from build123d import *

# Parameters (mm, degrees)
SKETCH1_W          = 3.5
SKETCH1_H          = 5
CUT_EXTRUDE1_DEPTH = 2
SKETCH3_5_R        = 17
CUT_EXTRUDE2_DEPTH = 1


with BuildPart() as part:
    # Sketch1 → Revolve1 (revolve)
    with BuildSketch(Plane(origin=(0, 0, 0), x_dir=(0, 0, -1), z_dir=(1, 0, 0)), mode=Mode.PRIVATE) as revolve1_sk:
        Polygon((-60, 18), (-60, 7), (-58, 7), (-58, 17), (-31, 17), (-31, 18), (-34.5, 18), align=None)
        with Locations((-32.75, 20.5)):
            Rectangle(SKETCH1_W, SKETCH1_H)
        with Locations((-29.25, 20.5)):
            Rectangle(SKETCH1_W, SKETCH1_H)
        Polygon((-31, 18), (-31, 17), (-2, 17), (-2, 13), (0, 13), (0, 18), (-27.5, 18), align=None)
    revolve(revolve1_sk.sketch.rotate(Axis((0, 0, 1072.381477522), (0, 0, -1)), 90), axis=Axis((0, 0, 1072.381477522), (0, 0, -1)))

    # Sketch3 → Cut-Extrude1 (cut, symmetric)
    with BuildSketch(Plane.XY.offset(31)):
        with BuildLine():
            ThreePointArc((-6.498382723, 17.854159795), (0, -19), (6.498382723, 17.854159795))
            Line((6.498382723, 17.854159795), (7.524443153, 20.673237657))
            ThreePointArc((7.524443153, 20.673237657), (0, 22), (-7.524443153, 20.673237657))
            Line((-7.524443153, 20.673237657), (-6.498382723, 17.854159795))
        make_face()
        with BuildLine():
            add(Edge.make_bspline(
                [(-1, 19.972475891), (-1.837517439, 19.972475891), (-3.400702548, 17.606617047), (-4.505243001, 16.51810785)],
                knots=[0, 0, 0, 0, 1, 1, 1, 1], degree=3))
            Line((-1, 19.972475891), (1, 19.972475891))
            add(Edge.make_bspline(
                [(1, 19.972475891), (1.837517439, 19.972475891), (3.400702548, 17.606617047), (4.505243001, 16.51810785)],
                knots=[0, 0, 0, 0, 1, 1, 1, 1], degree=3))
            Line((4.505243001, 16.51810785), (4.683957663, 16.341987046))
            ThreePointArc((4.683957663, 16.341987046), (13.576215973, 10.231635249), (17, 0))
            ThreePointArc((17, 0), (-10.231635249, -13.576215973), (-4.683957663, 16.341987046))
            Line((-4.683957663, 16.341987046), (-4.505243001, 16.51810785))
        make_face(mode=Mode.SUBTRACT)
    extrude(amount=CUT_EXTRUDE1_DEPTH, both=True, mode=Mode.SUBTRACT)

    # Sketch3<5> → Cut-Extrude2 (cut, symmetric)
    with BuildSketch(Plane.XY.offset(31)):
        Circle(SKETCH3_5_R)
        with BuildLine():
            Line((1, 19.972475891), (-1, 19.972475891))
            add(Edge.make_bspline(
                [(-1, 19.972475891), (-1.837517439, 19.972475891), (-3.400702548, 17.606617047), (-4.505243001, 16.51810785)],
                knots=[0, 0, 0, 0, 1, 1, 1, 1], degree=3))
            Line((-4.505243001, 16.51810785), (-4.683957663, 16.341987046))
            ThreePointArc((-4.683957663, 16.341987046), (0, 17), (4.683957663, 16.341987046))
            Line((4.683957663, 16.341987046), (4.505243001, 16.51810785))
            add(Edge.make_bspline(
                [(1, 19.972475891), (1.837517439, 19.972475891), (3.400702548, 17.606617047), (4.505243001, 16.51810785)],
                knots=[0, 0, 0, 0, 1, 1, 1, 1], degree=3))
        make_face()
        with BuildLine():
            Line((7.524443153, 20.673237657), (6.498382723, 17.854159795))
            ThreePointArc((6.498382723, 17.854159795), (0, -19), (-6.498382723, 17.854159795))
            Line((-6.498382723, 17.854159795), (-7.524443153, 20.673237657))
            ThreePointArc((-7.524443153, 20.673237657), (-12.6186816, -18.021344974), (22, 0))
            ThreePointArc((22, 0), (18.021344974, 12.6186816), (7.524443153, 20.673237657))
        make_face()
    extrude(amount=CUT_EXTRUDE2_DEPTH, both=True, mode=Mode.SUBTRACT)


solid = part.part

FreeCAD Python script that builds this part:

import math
import FreeCAD as App
import Part
import Sketcher

V = App.Vector
Q = App.Units.Quantity


def add_polygon(sketch, points):
    """Adds a closed chain of lines whose ends are joined by coincident constraints."""
    first, n = sketch.GeometryCount, len(points)
    for a, b in zip(points, points[1:] + points[:1]):
        sketch.addGeometry(Part.LineSegment(App.Vector(*a, 0), App.Vector(*b, 0)), False)
    for i in range(n):
        sketch.addConstraint(Sketcher.Constraint("Coincident", first + i, 2, first + (i + 1) % n, 1))

doc = App.newDocument("Part")
body = doc.addObject("PartDesign::Body", "Body")

# Sketch on YZ plane
sketch1 = doc.addObject("Sketcher::SketchObject", "Sketch")
body.addObject(sketch1)
sketch1.AttachmentSupport = (doc.YZ_Plane, [""])
sketch1.MapMode = "FlatFace"
add_polygon(sketch1, [(18, 60), (7, 60), (7, 58), (17, 58), (17, 2), (13, 2), (13, 0), (18, 0), (18, 27.5), (23, 27.5), (23, 34.5), (18, 34.5)])  # lines 0-11
sketch1.addConstraint(Sketcher.Constraint("Horizontal", 0))
sketch1.addConstraint(Sketcher.Constraint("Vertical", 1))
sketch1.addConstraint(Sketcher.Constraint("Horizontal", 2))
sketch1.addConstraint(Sketcher.Constraint("Vertical", 3))
sketch1.addConstraint(Sketcher.Constraint("Horizontal", 4))
sketch1.addConstraint(Sketcher.Constraint("Vertical", 5))
sketch1.addConstraint(Sketcher.Constraint("Horizontal", 6))
sketch1.addConstraint(Sketcher.Constraint("Vertical", 7))
sketch1.addConstraint(Sketcher.Constraint("Horizontal", 8))
sketch1.addConstraint(Sketcher.Constraint("Vertical", 9))
sketch1.addConstraint(Sketcher.Constraint("Horizontal", 10))
sketch1.addConstraint(Sketcher.Constraint("Vertical", 11))
sketch1.addConstraint(Sketcher.Constraint("PointOnObject", 5, 2, -1))
sketch1.addConstraint(Sketcher.Constraint("Vertical", 7, 2, 10, 2))
sketch1.addConstraint(Sketcher.Constraint("Equal", 6, 8))
sketch1.addConstraint(Sketcher.Constraint("Equal", 1, 5))
sketch1.addConstraint(Sketcher.Constraint("DistanceX", 0, 2, 0, 1, 11.0))
sketch1.addConstraint(Sketcher.Constraint("DistanceX", 2, 1, 2, 2, 10.0))
sketch1.addConstraint(Sketcher.Constraint("DistanceX", 4, 2, 4, 1, 4.0))
sketch1.addConstraint(Sketcher.Constraint("DistanceY", 1, 2, 1, 1, 2.0))
sketch1.addConstraint(Sketcher.Constraint("DistanceY", 3, 2, 3, 1, 56.0))
sketch1.addConstraint(Sketcher.Constraint("DistanceY", 9, 1, 9, 2, 7.0))
sketch1.addConstraint(Sketcher.Constraint("DistanceY", 7, 1, 7, 2, 27.5))
sketch1.addConstraint(Sketcher.Constraint("DistanceX", -1, 1, 0, 2, 7.0))
revolution = doc.addObject("PartDesign::Revolution", "Revolution")
body.addObject(revolution)
revolution.Profile = sketch1
revolution.ReferenceAxis = (sketch1, ["V_Axis"])
revolution.Angle = 360

# Sketch on XY plane
sketch2 = doc.addObject("Sketcher::SketchObject", "Sketch001")
body.addObject(sketch2)
sketch2.AttachmentSupport = (doc.XY_Plane, [""])
sketch2.MapMode = "FlatFace"
sketch2.AttachmentOffset = App.Placement(V(0, 0, 31), App.Rotation())
sketch2.addGeometry(Part.ArcOfCircle(Part.Circle(V(0, 0, 0), V(0, 0, 1), 19), math.radians(110), math.radians(430)), False)
sketch2.addGeometry(Part.LineSegment(V(6.498383, 17.85416, 0), V(7.524443, 20.673238, 0)), False)
sketch2.addGeometry(Part.ArcOfCircle(Part.Circle(V(0, 0, 0), V(0, 0, 1), 22), math.radians(70), math.radians(110)), False)
sketch2.addGeometry(Part.LineSegment(V(-7.524443, 20.673238, 0), V(-6.498383, 17.85416, 0)), False)
sketch2.addGeometry(Part.BSplineCurve([V(-1, 19.972476, 0), V(-1.837517, 19.972476, 0), V(-3.400703, 17.606617, 0), V(-4.505243, 16.518108, 0)], [4, 4], [0, 1], False, 3, [1, 1, 1, 1], False), False)
sketch2.addGeometry(Part.LineSegment(V(-1, 19.972476, 0), V(1, 19.972476, 0)), False)
sketch2.addGeometry(Part.BSplineCurve([V(1, 19.972476, 0), V(1.837517, 19.972476, 0), V(3.400703, 17.606617, 0), V(4.505243, 16.518108, 0)], [4, 4], [0, 1], False, 3, [1, 1, 1, 1], False), False)
sketch2.addGeometry(Part.LineSegment(V(4.505243, 16.518108, 0), V(4.683958, 16.341987, 0)), False)
sketch2.addGeometry(Part.ArcOfCircle(Part.Circle(V(0, 0, 0), V(0, 0, 1), 17), math.radians(0), math.radians(74.006582)), False)
sketch2.addGeometry(Part.ArcOfCircle(Part.Circle(V(0, 0, 0), V(0, 0, 1), 17), math.radians(105.993418), math.radians(360)), False)
sketch2.addGeometry(Part.LineSegment(V(-4.683958, 16.341987, 0), V(-4.505243, 16.518108, 0)), False)
sketch2.addConstraint(Sketcher.Constraint("Block", 4))
sketch2.addConstraint(Sketcher.Constraint("Block", 6))
sketch2.addConstraint(Sketcher.Constraint("Coincident", 0, 2, 1, 1))
sketch2.addConstraint(Sketcher.Constraint("Coincident", 1, 2, 2, 1))
sketch2.addConstraint(Sketcher.Constraint("Coincident", 2, 2, 3, 1))
sketch2.addConstraint(Sketcher.Constraint("Coincident", 3, 2, 0, 1))
sketch2.addConstraint(Sketcher.Constraint("Coincident", 4, 1, 5, 1))
sketch2.addConstraint(Sketcher.Constraint("Coincident", 5, 2, 6, 1))
sketch2.addConstraint(Sketcher.Constraint("Coincident", 6, 2, 7, 1))
sketch2.addConstraint(Sketcher.Constraint("Coincident", 7, 2, 8, 2))
sketch2.addConstraint(Sketcher.Constraint("Tangent", 8, 1, 9, 2))
sketch2.addConstraint(Sketcher.Constraint("Coincident", 9, 1, 10, 1))
sketch2.addConstraint(Sketcher.Constraint("Coincident", 10, 2, 4, 2))
sketch2.addConstraint(Sketcher.Constraint("Coincident", 0, 3, -1, 1))
sketch2.addConstraint(Sketcher.Constraint("Coincident", 2, 3, -1, 1))
sketch2.addConstraint(Sketcher.Constraint("Coincident", 8, 3, -1, 1))
sketch2.addConstraint(Sketcher.Constraint("Equal", 8, 9))
sketch2.addConstraint(Sketcher.Constraint("PointOnObject", 8, 1, -1))
sketch2.addConstraint(Sketcher.Constraint("Horizontal", 1, 2, 2, 2))
sketch2.addConstraint(Sketcher.Constraint("Horizontal", 0, 2, 3, 2))
sketch2.addConstraint(Sketcher.Constraint("Horizontal", 7, 2, 9, 1))
sketch2.addConstraint(Sketcher.Constraint("Radius", 0, 19.0))
sketch2.addConstraint(Sketcher.Constraint("Radius", 2, 22.0))
sketch2.addConstraint(Sketcher.Constraint("Radius", 8, 17.0))
sketch2.addConstraint(Sketcher.Constraint("Angle", 1, Q("70 deg")))
sketch2.addConstraint(Sketcher.Constraint("DistanceX", 2, 2, 7, 2, 12.208401))
sketch2.addConstraint(Sketcher.Constraint("DistanceX", 2, 2, 10, 2, 3.0192))
pocket1 = doc.addObject("PartDesign::Pocket", "Pocket")
body.addObject(pocket1)
pocket1.Profile = sketch2
pocket1.Length = 4
pocket1.Midplane = True

# Sketch on XY plane
sketch3 = doc.addObject("Sketcher::SketchObject", "Sketch002")
body.addObject(sketch3)
sketch3.AttachmentSupport = (doc.XY_Plane, [""])
sketch3.MapMode = "FlatFace"
sketch3.AttachmentOffset = App.Placement(V(0, 0, 31), App.Rotation())
sketch3.addGeometry(Part.LineSegment(V(4.683958, 16.341987, 0), V(4.505243, 16.518108, 0)), False)
sketch3.addGeometry(Part.BSplineCurve([V(1, 19.972476, 0), V(1.837517, 19.972476, 0), V(3.400703, 17.606617, 0), V(4.505243, 16.518108, 0)], [4, 4], [0, 1], False, 3, [1, 1, 1, 1], False), False)
sketch3.addGeometry(Part.LineSegment(V(1, 19.972476, 0), V(-1, 19.972476, 0)), False)
sketch3.addGeometry(Part.BSplineCurve([V(-1, 19.972476, 0), V(-1.837517, 19.972476, 0), V(-3.400703, 17.606617, 0), V(-4.505243, 16.518108, 0)], [4, 4], [0, 1], False, 3, [1, 1, 1, 1], False), False)
sketch3.addGeometry(Part.LineSegment(V(-4.505243, 16.518108, 0), V(-4.683958, 16.341987, 0)), False)
sketch3.addGeometry(Part.ArcOfCircle(Part.Circle(V(0, 0, 0), V(0, 0, 1), 17), math.radians(105.993418), math.radians(434.006582)), False)
sketch3.addGeometry(Part.LineSegment(V(7.524443, 20.673238, 0), V(6.498383, 17.85416, 0)), False)
sketch3.addGeometry(Part.ArcOfCircle(Part.Circle(V(0, 0, 0), V(0, 0, 1), 19), math.radians(110), math.radians(430)), False)
sketch3.addGeometry(Part.LineSegment(V(-6.498383, 17.85416, 0), V(-7.524443, 20.673238, 0)), False)
sketch3.addGeometry(Part.ArcOfCircle(Part.Circle(V(0, 0, 0), V(0, 0, 1), 22), math.radians(110), math.radians(430)), False)
sketch3.addConstraint(Sketcher.Constraint("Block", 1))
sketch3.addConstraint(Sketcher.Constraint("Block", 3))
sketch3.addConstraint(Sketcher.Constraint("Coincident", 0, 2, 1, 2))
sketch3.addConstraint(Sketcher.Constraint("Coincident", 1, 1, 2, 1))
sketch3.addConstraint(Sketcher.Constraint("Coincident", 2, 2, 3, 1))
sketch3.addConstraint(Sketcher.Constraint("Coincident", 3, 2, 4, 1))
sketch3.addConstraint(Sketcher.Constraint("Coincident", 4, 2, 5, 1))
sketch3.addConstraint(Sketcher.Constraint("Coincident", 5, 2, 0, 1))
sketch3.addConstraint(Sketcher.Constraint("Coincident", 6, 2, 7, 2))
sketch3.addConstraint(Sketcher.Constraint("Coincident", 7, 1, 8, 1))
sketch3.addConstraint(Sketcher.Constraint("Coincident", 8, 2, 9, 1))
sketch3.addConstraint(Sketcher.Constraint("Coincident", 9, 2, 6, 1))
sketch3.addConstraint(Sketcher.Constraint("Coincident", 5, 3, -1, 1))
sketch3.addConstraint(Sketcher.Constraint("Coincident", 7, 3, -1, 1))
sketch3.addConstraint(Sketcher.Constraint("Coincident", 9, 3, -1, 1))
sketch3.addConstraint(Sketcher.Constraint("Horizontal", 4, 2, 5, 2))
sketch3.addConstraint(Sketcher.Constraint("Horizontal", 6, 2, 7, 1))
sketch3.addConstraint(Sketcher.Constraint("Horizontal", 8, 2, 9, 2))
sketch3.addConstraint(Sketcher.Constraint("Radius", 5, 17.0))
sketch3.addConstraint(Sketcher.Constraint("Radius", 7, 19.0))
sketch3.addConstraint(Sketcher.Constraint("Radius", 9, 22.0))
sketch3.addConstraint(Sketcher.Constraint("Angle", 6, Q("-110 deg")))
sketch3.addConstraint(Sketcher.Constraint("DistanceX", 4, 2, 0, 2, 9.189201))
sketch3.addConstraint(Sketcher.Constraint("DistanceX", 8, 2, 5, 2, 12.208401))
pocket2 = doc.addObject("PartDesign::Pocket", "Pocket001")
body.addObject(pocket2)
pocket2.Profile = sketch3
pocket2.Length = 2
pocket2.Midplane = True

doc.recompute()
